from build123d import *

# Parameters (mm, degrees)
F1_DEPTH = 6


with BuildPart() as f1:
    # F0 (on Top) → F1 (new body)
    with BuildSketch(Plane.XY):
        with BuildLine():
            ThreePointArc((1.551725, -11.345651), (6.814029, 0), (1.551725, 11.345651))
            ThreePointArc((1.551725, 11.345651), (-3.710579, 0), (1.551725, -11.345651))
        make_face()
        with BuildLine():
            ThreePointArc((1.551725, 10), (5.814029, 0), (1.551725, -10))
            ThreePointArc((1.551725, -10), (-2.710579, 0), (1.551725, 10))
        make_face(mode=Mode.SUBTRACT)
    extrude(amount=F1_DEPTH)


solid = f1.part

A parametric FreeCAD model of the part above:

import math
import FreeCAD as App
import Part
import Sketcher
from FreeCAD import Vector

doc = App.newDocument("Part")
body = doc.addObject("PartDesign::Body", "Body")

# Sketch on XY plane
sketch1 = body.newObject("Sketcher::SketchObject", "Sketch")
sketch1.AttachmentSupport = (doc.getObject("XY_Plane"), [""])
sketch1.MapMode = "FlatFace"
sketch1.addGeometry(Part.ArcOfCircle(Part.Circle(Vector(-8, 0, 0), Vector(0, 0, 1), 15), math.radians(-50), math.radians(50)), False)
sketch1.addGeometry(Part.ArcOfCircle(Part.Circle(Vector(11, 0, 0), Vector(0, 0, 1), 15), math.radians(130), math.radians(230)), False)
sketch1.addGeometry(Part.ArcOfCircle(Part.Circle(Vector(11, 0, 0), Vector(0, 0, 1), 14), math.radians(134), math.radians(226)), False)
sketch1.addGeometry(Part.ArcOfCircle(Part.Circle(Vector(-8, 0, 0), Vector(0, 0, 1), 14), math.radians(-46), math.radians(46)), False)
sketch1.addConstraint(Sketcher.Constraint("Coincident", 0, 1, 1, 2))
sketch1.addConstraint(Sketcher.Constraint("Coincident", 1, 1, 0, 2))
sketch1.addConstraint(Sketcher.Constraint("Coincident", 2, 1, 3, 2))
sketch1.addConstraint(Sketcher.Constraint("Coincident", 3, 1, 2, 2))
sketch1.addConstraint(Sketcher.Constraint("Coincident", 2, 3, 1, 3))
sketch1.addConstraint(Sketcher.Constraint("Coincident", 3, 3, 0, 3))
sketch1.addConstraint(Sketcher.Constraint("Equal", 0, 1))
sketch1.addConstraint(Sketcher.Constraint("Equal", 2, 3))
sketch1.addConstraint(Sketcher.Constraint("Symmetric", 0, 1, 1, 1, -1))
sketch1.addConstraint(Sketcher.Constraint("DistanceY", -1, 1, 2, 1, 10.0))
sketch1.addConstraint(Sketcher.Constraint("Radius", 0, 14.861897))
sketch1.addConstraint(Sketcher.Constraint("Radius", 2, 13.861897))
sketch1.addConstraint(Sketcher.Constraint("DistanceX", 0, 3, -1, 1, 8.047868))
pad1 = body.newObject("PartDesign::Pad", "Pad")
pad1.Profile = sketch1
pad1.Length = 6

doc.recompute()
